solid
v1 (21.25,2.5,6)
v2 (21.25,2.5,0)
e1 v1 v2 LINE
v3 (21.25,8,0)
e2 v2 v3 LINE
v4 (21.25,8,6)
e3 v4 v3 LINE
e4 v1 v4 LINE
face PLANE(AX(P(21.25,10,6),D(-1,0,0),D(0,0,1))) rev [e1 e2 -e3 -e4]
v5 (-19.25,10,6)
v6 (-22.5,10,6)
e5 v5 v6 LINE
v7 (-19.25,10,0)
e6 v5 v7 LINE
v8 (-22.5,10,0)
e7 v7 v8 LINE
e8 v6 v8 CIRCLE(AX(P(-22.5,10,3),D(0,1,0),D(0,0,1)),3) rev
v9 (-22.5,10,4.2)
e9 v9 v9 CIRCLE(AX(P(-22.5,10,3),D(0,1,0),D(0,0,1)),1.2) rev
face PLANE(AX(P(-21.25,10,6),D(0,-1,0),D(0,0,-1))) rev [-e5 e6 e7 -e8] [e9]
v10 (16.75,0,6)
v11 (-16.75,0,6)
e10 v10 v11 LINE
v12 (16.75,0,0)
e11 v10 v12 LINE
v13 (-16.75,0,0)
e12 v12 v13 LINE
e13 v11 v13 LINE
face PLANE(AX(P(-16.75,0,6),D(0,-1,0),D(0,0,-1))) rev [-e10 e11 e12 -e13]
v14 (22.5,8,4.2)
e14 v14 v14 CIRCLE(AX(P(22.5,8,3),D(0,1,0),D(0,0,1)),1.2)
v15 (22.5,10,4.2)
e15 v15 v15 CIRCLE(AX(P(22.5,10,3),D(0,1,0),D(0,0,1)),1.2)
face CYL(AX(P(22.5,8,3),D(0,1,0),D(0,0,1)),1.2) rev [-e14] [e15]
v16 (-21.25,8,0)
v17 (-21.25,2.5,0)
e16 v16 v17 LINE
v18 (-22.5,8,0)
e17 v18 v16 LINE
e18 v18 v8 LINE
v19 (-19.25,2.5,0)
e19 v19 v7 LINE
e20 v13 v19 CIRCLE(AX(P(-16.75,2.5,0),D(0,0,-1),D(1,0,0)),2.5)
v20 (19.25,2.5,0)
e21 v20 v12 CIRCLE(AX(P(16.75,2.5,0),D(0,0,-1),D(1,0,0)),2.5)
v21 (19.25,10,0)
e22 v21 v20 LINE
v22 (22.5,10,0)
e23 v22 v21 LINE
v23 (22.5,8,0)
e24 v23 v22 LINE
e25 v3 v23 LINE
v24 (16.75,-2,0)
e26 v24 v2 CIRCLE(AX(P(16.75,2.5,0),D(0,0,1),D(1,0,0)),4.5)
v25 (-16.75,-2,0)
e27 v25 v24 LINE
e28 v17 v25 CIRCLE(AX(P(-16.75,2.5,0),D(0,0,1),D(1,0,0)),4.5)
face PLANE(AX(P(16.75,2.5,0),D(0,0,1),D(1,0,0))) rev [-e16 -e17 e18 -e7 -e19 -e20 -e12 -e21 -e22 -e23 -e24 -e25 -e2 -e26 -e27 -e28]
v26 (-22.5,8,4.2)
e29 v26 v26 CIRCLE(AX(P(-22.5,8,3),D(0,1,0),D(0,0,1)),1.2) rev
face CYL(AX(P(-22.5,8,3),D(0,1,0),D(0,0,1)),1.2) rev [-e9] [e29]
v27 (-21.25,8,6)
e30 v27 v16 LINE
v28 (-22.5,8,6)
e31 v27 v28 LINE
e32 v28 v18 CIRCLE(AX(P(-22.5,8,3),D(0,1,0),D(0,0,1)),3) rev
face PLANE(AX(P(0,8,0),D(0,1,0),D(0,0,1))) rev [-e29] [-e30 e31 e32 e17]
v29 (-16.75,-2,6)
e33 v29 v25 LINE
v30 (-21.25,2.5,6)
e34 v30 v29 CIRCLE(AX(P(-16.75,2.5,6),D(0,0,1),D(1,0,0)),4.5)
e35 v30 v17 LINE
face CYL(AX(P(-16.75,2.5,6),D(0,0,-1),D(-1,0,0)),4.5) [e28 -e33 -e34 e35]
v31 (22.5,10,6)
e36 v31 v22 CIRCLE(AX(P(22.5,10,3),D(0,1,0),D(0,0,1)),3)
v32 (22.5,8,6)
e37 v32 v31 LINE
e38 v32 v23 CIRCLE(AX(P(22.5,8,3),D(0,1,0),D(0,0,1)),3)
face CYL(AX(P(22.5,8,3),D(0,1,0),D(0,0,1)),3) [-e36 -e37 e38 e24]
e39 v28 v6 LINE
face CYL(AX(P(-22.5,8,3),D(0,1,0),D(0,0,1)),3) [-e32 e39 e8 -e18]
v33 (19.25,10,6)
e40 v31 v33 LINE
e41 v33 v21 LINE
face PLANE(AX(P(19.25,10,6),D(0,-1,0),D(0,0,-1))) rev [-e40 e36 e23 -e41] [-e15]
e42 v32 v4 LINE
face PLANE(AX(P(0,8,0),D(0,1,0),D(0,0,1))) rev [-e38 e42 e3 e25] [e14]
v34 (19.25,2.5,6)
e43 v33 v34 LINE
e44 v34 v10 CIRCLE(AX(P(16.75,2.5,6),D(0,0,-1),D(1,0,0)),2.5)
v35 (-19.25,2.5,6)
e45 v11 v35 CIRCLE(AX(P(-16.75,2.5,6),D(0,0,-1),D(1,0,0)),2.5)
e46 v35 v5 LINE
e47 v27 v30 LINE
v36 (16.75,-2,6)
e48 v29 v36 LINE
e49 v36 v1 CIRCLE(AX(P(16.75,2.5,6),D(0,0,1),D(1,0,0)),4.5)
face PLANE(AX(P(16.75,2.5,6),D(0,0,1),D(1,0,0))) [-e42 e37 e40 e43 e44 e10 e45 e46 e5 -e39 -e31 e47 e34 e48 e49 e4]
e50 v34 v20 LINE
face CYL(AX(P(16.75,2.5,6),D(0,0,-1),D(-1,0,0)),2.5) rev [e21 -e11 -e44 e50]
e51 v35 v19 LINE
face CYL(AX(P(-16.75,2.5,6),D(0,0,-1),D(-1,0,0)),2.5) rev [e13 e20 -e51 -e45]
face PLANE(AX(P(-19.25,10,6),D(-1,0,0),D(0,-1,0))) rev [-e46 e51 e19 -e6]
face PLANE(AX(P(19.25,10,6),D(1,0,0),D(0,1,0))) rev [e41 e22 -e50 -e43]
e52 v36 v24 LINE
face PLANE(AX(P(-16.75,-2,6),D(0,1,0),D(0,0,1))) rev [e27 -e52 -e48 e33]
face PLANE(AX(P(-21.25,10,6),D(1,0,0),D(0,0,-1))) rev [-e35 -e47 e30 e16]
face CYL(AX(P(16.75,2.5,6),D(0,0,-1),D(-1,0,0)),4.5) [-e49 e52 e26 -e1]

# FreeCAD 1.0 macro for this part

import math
import FreeCAD as App
import Part
import Sketcher
from FreeCAD import Vector

doc = App.newDocument("Part")
params = doc.addObject("Spreadsheet::Sheet", "Params")
for row, (alias, value) in enumerate([
    ("sketch1_radius", "4.5 mm"),
    ("sketch1_radius2", "2.5 mm"),
    ("sketch1_width", "33.5 mm"),
    ("sketch1_height", "7.5 mm"),
    ("pad1_length", "6 mm"),
    ("sketch2_radius", "3 mm"),
    ("sketch2_diameter", "2.4 mm"),
    ("sketch2_width", "1.25 mm"),
    ("pad2_length", "2 mm"),
], start=1):
    params.set(f"A{row}", alias)
    params.set(f"B{row}", "=" + value)
    params.setAlias(f"B{row}", alias)

body = doc.addObject("PartDesign::Body", "Body")

# Sketch on XY plane
sketch1 = doc.addObject("Sketcher::SketchObject", "Sketch")
body.addObject(sketch1)
sketch1.AttachmentSupport = (doc.XY_Plane, [""])
sketch1.MapMode = "FlatFace"
sketch1.addGeometry([
    Part.LineSegment(Vector(-21.25, 10, 0), Vector(-21.25, 2.5, 0)),  # 0
    Part.ArcOfCircle(Part.Circle(Vector(-16.75, 2.5, 0), Vector(0, 0, 1), 4.5), math.radians(-180), math.radians(-90)),  # 1
    Part.LineSegment(Vector(-16.75, -2, 0), Vector(16.75, -2, 0)),  # 2
    Part.ArcOfCircle(Part.Circle(Vector(16.75, 2.5, 0), Vector(0, 0, 1), 4.5), math.radians(-90), math.radians(0)),  # 3
    Part.LineSegment(Vector(21.25, 2.5, 0), Vector(21.25, 10, 0)),  # 4
    Part.LineSegment(Vector(21.25, 10, 0), Vector(19.25, 10, 0)),  # 5
    Part.LineSegment(Vector(19.25, 10, 0), Vector(19.25, 2.5, 0)),  # 6
    Part.ArcOfCircle(Part.Circle(Vector(16.75, 2.5, 0), Vector(0, 0, 1), 2.5), math.radians(-90), math.radians(0)),  # 7
    Part.LineSegment(Vector(16.75, 0, 0), Vector(-16.75, 0, 0)),  # 8
    Part.ArcOfCircle(Part.Circle(Vector(-16.75, 2.5, 0), Vector(0, 0, 1), 2.5), math.radians(180), math.radians(270)),  # 9
    Part.LineSegment(Vector(-19.25, 2.5, 0), Vector(-19.25, 10, 0)),  # 10
    Part.LineSegment(Vector(-19.25, 10, 0), Vector(-21.25, 10, 0)),  # 11
], False)
sketch1.addConstraint([
    Sketcher.Constraint("Tangent", 0, 2, 1, 1),
    Sketcher.Constraint("Tangent", 1, 2, 2, 1),
    Sketcher.Constraint("Tangent", 2, 2, 3, 1),
    Sketcher.Constraint("Tangent", 3, 2, 4, 1),
    Sketcher.Constraint("Coincident", 4, 2, 5, 1),
    Sketcher.Constraint("Coincident", 5, 2, 6, 1),
    Sketcher.Constraint("Tangent", 6, 2, 7, 2),
    Sketcher.Constraint("Tangent", 7, 1, 8, 1),
    Sketcher.Constraint("Tangent", 8, 2, 9, 2),
    Sketcher.Constraint("Tangent", 9, 1, 10, 1),
    Sketcher.Constraint("Coincident", 10, 2, 11, 1),
    Sketcher.Constraint("Coincident", 11, 2, 0, 1),
    Sketcher.Constraint("Vertical", 0),
    Sketcher.Constraint("Horizontal", 2),
    Sketcher.Constraint("Vertical", 4),
    Sketcher.Constraint("Horizontal", 5),
    Sketcher.Constraint("Vertical", 6),
    Sketcher.Constraint("Horizontal", 8),
    Sketcher.Constraint("Vertical", 10),
    Sketcher.Constraint("Horizontal", 11),
    Sketcher.Constraint("Coincident", 7, 3, 3, 3),
    Sketcher.Constraint("Coincident", 9, 3, 1, 3),
    Sketcher.Constraint("Equal", 1, 3),
    Sketcher.Constraint("Symmetric", 7, 1, 8, 2, -1, 1),
    Sketcher.Constraint("Horizontal", 5, 2, 10, 2),
    Sketcher.Constraint("Radius", 1, 4.5),
    Sketcher.Constraint("Radius", 7, 2.5),
    Sketcher.Constraint("DistanceX", 2, 1, 2, 2, 33.5),
    Sketcher.Constraint("DistanceY", 0, 2, 0, 1, 7.5),
])
sketch1.setExpression("Constraints[25]", "Params.sketch1_radius")
sketch1.setExpression("Constraints[26]", "Params.sketch1_radius2")
sketch1.setExpression("Constraints[27]", "Params.sketch1_width")
sketch1.setExpression("Constraints[28]", "Params.sketch1_height")
pad1 = doc.addObject("PartDesign::Pad", "Pad")
body.addObject(pad1)
pad1.Profile = sketch1
pad1.setExpression("Length", "Params.pad1_length")

# Sketch on XZ plane
sketch2 = doc.addObject("Sketcher::SketchObject", "Sketch001")
body.addObject(sketch2)
sketch2.AttachmentSupport = (doc.XZ_Plane, [""])
sketch2.MapMode = "FlatFace"
sketch2.AttachmentOffset = App.Placement(Vector(0, 0, -10), App.Rotation())
sketch2.addGeometry([
    Part.LineSegment(Vector(21.25, 6, 0), Vector(22.5, 6, 0)),  # 0
    Part.ArcOfCircle(Part.Circle(Vector(22.5, 3, 0), Vector(0, 0, 1), 3), math.radians(-90), math.radians(90)),  # 1
    Part.LineSegment(Vector(22.5, 0, 0), Vector(21.25, 0, 0)),  # 2
    Part.LineSegment(Vector(21.25, 0, 0), Vector(21.25, 6, 0)),  # 3
    Part.Circle(Vector(22.5, 3, 0), Vector(0, 0, 1), 1.2),  # 4
    Part.LineSegment(Vector(-22.5, 6, 0), Vector(-21.25, 6, 0)),  # 5
    Part.LineSegment(Vector(-21.25, 6, 0), Vector(-21.25, 0, 0)),  # 6
    Part.LineSegment(Vector(-21.25, 0, 0), Vector(-22.5, 0, 0)),  # 7
    Part.ArcOfCircle(Part.Circle(Vector(-22.5, 3, 0), Vector(0, 0, 1), 3), math.radians(90), math.radians(270)),  # 8
    Part.Circle(Vector(-22.5, 3, 0), Vector(0, 0, 1), 1.2),  # 9
], False)
sketch2.addConstraint([
    Sketcher.Constraint("Tangent", 0, 2, 1, 2),
    Sketcher.Constraint("Tangent", 1, 1, 2, 1),
    Sketcher.Constraint("Coincident", 2, 2, 3, 1),
    Sketcher.Constraint("Coincident", 3, 2, 0, 1),
    Sketcher.Constraint("Coincident", 5, 2, 6, 1),
    Sketcher.Constraint("Coincident", 6, 2, 7, 1),
    Sketcher.Constraint("Tangent", 7, 2, 8, 2),
    Sketcher.Constraint("Tangent", 8, 1, 5, 1),
    Sketcher.Constraint("Horizontal", 0),
    Sketcher.Constraint("Horizontal", 2),
    Sketcher.Constraint("Vertical", 3),
    Sketcher.Constraint("Horizontal", 5),
    Sketcher.Constraint("Vertical", 6),
    Sketcher.Constraint("Horizontal", 7),
    Sketcher.Constraint("Coincident", 4, 3, 1, 3),
    Sketcher.Constraint("Coincident", 9, 3, 8, 3),
    Sketcher.Constraint("Equal", 1, 8),
    Sketcher.Constraint("Equal", 4, 9),
    Sketcher.Constraint("Symmetric", 2, 2, 6, 2, -1, 1),
    Sketcher.Constraint("Symmetric", 1, 3, 8, 3, -2),
    Sketcher.Constraint("Radius", 1, 3.0),
    Sketcher.Constraint("Diameter", 4, 2.4),
    Sketcher.Constraint("DistanceX", 8, 3, 1, 3, 45.0),
    Sketcher.Constraint("DistanceX", 0, 1, 0, 2, 1.25),
])
sketch2.setExpression("Constraints[20]", "Params.sketch2_radius")
sketch2.setExpression("Constraints[21]", "Params.sketch2_diameter")
sketch2.setExpression("Constraints[23]", "Params.sketch2_width")
pad2 = doc.addObject("PartDesign::Pad", "Pad001")
body.addObject(pad2)
pad2.Profile = sketch2
pad2.setExpression("Length", "Params.pad2_length")

doc.recompute()
